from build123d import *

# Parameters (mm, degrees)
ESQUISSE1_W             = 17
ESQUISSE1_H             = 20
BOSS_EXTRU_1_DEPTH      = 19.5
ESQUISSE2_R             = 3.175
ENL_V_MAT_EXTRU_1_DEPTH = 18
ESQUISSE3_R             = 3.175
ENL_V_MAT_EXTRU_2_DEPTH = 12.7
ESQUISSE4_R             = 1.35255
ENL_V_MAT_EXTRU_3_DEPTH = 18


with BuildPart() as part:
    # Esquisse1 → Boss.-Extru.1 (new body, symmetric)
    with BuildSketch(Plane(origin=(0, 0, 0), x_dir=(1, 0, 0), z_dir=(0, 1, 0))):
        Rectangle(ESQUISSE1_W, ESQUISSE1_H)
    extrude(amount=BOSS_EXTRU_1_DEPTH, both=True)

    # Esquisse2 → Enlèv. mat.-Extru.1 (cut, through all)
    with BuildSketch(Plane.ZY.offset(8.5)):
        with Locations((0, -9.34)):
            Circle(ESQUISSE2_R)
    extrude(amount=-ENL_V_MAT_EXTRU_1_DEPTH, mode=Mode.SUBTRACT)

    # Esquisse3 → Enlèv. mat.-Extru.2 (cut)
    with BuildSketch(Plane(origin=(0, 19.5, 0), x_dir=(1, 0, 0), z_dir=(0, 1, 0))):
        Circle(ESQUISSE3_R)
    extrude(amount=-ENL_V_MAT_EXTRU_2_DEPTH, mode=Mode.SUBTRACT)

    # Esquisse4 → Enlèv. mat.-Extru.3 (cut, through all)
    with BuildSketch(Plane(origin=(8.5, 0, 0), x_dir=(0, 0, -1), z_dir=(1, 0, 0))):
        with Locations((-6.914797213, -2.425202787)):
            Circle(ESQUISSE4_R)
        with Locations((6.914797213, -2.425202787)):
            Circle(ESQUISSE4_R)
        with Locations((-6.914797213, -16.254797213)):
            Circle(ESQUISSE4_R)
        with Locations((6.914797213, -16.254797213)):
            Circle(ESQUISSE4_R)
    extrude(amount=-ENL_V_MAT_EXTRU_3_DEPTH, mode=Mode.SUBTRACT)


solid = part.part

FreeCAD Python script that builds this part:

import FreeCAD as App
import Part
import Sketcher

doc = App.newDocument("Part")
body = doc.addObject("PartDesign::Body", "Body")

sketch1 = doc.addObject("Sketcher::SketchObject", "Sketch")
body.addObject(sketch1)
sketch1.AttachmentSupport = (doc.XZ_Plane, [""])
sketch1.MapMode = "FlatFace"
sketch1.addGeometry(Part.LineSegment(App.Vector(-8.5, -10, 0), App.Vector(-8.5, 10, 0)), False)
sketch1.addGeometry(Part.LineSegment(App.Vector(-8.5, 10, 0), App.Vector(8.5, 10, 0)), False)
sketch1.addGeometry(Part.LineSegment(App.Vector(8.5, 10, 0), App.Vector(8.5, -10, 0)), False)
sketch1.addGeometry(Part.LineSegment(App.Vector(8.5, -10, 0), App.Vector(-8.5, -10, 0)), False)
sketch1.addConstraint(Sketcher.Constraint("Coincident", 0, 2, 1, 1))
sketch1.addConstraint(Sketcher.Constraint("Coincident", 1, 2, 2, 1))
sketch1.addConstraint(Sketcher.Constraint("Coincident", 2, 2, 3, 1))
sketch1.addConstraint(Sketcher.Constraint("Coincident", 3, 2, 0, 1))
sketch1.addConstraint(Sketcher.Constraint("Vertical", 0))
sketch1.addConstraint(Sketcher.Constraint("Horizontal", 1))
sketch1.addConstraint(Sketcher.Constraint("Vertical", 2))
sketch1.addConstraint(Sketcher.Constraint("Horizontal", 3))
sketch1.addConstraint(Sketcher.Constraint("Symmetric", 0, 2, 2, 2, -1, 1))
sketch1.addConstraint(Sketcher.Constraint("DistanceX", 1, 1, 1, 2, 17.0))
sketch1.addConstraint(Sketcher.Constraint("DistanceY", 0, 1, 0, 2, 20.0))
pad1 = doc.addObject("PartDesign::Pad", "Pad")
body.addObject(pad1)
pad1.Profile = sketch1
pad1.Length = 39
pad1.Midplane = True

sketch2 = doc.addObject("Sketcher::SketchObject", "Sketch001")
body.addObject(sketch2)
sketch2.AttachmentSupport = (doc.YZ_Plane, [""])
sketch2.MapMode = "FlatFace"
sketch2.AttachmentOffset = App.Placement(App.Vector(0, 0, -8.5), App.Rotation())
sketch2.addGeometry(Part.Circle(App.Vector(-9.34, 0, 0), App.Vector(0, 0, 1), 3.175), False)
sketch2.addConstraint(Sketcher.Constraint("PointOnObject", 0, 3, -1))
sketch2.addConstraint(Sketcher.Constraint("Diameter", 0, 6.35))
sketch2.addConstraint(Sketcher.Constraint("DistanceX", 0, 3, -1, 1, 9.34))
pocket1 = doc.addObject("PartDesign::Pocket", "Pocket")
body.addObject(pocket1)
pocket1.Profile = sketch2
pocket1.Type = "ThroughAll"
pocket1.Reversed = True

sketch3 = doc.addObject("Sketcher::SketchObject", "Sketch002")
body.addObject(sketch3)
sketch3.AttachmentSupport = (doc.XZ_Plane, [""])
sketch3.MapMode = "FlatFace"
sketch3.AttachmentOffset = App.Placement(App.Vector(0, 0, -19.5), App.Rotation())
sketch3.addGeometry(Part.Circle(App.Vector(0, 0, 0), App.Vector(0, 0, 1), 3.175), False)
sketch3.addConstraint(Sketcher.Constraint("Coincident", 0, 3, -1, 1))
sketch3.addConstraint(Sketcher.Constraint("Diameter", 0, 6.35))
pocket2 = doc.addObject("PartDesign::Pocket", "Pocket001")
body.addObject(pocket2)
pocket2.Profile = sketch3
pocket2.Length = 12.7
pocket2.Reversed = True

sketch4 = doc.addObject("Sketcher::SketchObject", "Sketch003")
body.addObject(sketch4)
sketch4.AttachmentSupport = (doc.YZ_Plane, [""])
sketch4.MapMode = "FlatFace"
sketch4.AttachmentOffset = App.Placement(App.Vector(0, 0, 8.5), App.Rotation())
sketch4.addGeometry(Part.Circle(App.Vector(-2.425203, 6.914797, 0), App.Vector(0, 0, 1), 1.35255), False)
sketch4.addGeometry(Part.Circle(App.Vector(-2.425203, -6.914797, 0), App.Vector(0, 0, 1), 1.35255), False)
sketch4.addGeometry(Part.Circle(App.Vector(-16.254797, 6.914797, 0), App.Vector(0, 0, 1), 1.35255), False)
sketch4.addGeometry(Part.Circle(App.Vector(-16.254797, -6.914797, 0), App.Vector(0, 0, 1), 1.35255), False)
sketch4.addConstraint(Sketcher.Constraint("Equal", 0, 1))
sketch4.addConstraint(Sketcher.Constraint("Equal", 1, 2))
sketch4.addConstraint(Sketcher.Constraint("Equal", 2, 3))
sketch4.addConstraint(Sketcher.Constraint("Symmetric", 0, 3, 1, 3, -1))
sketch4.addConstraint(Sketcher.Constraint("Symmetric", 2, 3, 3, 3, -1))
sketch4.addConstraint(Sketcher.Constraint("Horizontal", 0, 3, 2, 3))
sketch4.addConstraint(Sketcher.Constraint("Diameter", 0, 2.7051))
sketch4.addConstraint(Sketcher.Constraint("DistanceX", 0, 3, -1, 1, 2.425203))
sketch4.addConstraint(Sketcher.Constraint("DistanceY", -1, 1, 0, 3, 6.914797))
sketch4.addConstraint(Sketcher.Constraint("DistanceX", 2, 3, -1, 1, 16.254797))
pocket3 = doc.addObject("PartDesign::Pocket", "Pocket002")
body.addObject(pocket3)
pocket3.Profile = sketch4
pocket3.Type = "ThroughAll"

doc.recompute()
